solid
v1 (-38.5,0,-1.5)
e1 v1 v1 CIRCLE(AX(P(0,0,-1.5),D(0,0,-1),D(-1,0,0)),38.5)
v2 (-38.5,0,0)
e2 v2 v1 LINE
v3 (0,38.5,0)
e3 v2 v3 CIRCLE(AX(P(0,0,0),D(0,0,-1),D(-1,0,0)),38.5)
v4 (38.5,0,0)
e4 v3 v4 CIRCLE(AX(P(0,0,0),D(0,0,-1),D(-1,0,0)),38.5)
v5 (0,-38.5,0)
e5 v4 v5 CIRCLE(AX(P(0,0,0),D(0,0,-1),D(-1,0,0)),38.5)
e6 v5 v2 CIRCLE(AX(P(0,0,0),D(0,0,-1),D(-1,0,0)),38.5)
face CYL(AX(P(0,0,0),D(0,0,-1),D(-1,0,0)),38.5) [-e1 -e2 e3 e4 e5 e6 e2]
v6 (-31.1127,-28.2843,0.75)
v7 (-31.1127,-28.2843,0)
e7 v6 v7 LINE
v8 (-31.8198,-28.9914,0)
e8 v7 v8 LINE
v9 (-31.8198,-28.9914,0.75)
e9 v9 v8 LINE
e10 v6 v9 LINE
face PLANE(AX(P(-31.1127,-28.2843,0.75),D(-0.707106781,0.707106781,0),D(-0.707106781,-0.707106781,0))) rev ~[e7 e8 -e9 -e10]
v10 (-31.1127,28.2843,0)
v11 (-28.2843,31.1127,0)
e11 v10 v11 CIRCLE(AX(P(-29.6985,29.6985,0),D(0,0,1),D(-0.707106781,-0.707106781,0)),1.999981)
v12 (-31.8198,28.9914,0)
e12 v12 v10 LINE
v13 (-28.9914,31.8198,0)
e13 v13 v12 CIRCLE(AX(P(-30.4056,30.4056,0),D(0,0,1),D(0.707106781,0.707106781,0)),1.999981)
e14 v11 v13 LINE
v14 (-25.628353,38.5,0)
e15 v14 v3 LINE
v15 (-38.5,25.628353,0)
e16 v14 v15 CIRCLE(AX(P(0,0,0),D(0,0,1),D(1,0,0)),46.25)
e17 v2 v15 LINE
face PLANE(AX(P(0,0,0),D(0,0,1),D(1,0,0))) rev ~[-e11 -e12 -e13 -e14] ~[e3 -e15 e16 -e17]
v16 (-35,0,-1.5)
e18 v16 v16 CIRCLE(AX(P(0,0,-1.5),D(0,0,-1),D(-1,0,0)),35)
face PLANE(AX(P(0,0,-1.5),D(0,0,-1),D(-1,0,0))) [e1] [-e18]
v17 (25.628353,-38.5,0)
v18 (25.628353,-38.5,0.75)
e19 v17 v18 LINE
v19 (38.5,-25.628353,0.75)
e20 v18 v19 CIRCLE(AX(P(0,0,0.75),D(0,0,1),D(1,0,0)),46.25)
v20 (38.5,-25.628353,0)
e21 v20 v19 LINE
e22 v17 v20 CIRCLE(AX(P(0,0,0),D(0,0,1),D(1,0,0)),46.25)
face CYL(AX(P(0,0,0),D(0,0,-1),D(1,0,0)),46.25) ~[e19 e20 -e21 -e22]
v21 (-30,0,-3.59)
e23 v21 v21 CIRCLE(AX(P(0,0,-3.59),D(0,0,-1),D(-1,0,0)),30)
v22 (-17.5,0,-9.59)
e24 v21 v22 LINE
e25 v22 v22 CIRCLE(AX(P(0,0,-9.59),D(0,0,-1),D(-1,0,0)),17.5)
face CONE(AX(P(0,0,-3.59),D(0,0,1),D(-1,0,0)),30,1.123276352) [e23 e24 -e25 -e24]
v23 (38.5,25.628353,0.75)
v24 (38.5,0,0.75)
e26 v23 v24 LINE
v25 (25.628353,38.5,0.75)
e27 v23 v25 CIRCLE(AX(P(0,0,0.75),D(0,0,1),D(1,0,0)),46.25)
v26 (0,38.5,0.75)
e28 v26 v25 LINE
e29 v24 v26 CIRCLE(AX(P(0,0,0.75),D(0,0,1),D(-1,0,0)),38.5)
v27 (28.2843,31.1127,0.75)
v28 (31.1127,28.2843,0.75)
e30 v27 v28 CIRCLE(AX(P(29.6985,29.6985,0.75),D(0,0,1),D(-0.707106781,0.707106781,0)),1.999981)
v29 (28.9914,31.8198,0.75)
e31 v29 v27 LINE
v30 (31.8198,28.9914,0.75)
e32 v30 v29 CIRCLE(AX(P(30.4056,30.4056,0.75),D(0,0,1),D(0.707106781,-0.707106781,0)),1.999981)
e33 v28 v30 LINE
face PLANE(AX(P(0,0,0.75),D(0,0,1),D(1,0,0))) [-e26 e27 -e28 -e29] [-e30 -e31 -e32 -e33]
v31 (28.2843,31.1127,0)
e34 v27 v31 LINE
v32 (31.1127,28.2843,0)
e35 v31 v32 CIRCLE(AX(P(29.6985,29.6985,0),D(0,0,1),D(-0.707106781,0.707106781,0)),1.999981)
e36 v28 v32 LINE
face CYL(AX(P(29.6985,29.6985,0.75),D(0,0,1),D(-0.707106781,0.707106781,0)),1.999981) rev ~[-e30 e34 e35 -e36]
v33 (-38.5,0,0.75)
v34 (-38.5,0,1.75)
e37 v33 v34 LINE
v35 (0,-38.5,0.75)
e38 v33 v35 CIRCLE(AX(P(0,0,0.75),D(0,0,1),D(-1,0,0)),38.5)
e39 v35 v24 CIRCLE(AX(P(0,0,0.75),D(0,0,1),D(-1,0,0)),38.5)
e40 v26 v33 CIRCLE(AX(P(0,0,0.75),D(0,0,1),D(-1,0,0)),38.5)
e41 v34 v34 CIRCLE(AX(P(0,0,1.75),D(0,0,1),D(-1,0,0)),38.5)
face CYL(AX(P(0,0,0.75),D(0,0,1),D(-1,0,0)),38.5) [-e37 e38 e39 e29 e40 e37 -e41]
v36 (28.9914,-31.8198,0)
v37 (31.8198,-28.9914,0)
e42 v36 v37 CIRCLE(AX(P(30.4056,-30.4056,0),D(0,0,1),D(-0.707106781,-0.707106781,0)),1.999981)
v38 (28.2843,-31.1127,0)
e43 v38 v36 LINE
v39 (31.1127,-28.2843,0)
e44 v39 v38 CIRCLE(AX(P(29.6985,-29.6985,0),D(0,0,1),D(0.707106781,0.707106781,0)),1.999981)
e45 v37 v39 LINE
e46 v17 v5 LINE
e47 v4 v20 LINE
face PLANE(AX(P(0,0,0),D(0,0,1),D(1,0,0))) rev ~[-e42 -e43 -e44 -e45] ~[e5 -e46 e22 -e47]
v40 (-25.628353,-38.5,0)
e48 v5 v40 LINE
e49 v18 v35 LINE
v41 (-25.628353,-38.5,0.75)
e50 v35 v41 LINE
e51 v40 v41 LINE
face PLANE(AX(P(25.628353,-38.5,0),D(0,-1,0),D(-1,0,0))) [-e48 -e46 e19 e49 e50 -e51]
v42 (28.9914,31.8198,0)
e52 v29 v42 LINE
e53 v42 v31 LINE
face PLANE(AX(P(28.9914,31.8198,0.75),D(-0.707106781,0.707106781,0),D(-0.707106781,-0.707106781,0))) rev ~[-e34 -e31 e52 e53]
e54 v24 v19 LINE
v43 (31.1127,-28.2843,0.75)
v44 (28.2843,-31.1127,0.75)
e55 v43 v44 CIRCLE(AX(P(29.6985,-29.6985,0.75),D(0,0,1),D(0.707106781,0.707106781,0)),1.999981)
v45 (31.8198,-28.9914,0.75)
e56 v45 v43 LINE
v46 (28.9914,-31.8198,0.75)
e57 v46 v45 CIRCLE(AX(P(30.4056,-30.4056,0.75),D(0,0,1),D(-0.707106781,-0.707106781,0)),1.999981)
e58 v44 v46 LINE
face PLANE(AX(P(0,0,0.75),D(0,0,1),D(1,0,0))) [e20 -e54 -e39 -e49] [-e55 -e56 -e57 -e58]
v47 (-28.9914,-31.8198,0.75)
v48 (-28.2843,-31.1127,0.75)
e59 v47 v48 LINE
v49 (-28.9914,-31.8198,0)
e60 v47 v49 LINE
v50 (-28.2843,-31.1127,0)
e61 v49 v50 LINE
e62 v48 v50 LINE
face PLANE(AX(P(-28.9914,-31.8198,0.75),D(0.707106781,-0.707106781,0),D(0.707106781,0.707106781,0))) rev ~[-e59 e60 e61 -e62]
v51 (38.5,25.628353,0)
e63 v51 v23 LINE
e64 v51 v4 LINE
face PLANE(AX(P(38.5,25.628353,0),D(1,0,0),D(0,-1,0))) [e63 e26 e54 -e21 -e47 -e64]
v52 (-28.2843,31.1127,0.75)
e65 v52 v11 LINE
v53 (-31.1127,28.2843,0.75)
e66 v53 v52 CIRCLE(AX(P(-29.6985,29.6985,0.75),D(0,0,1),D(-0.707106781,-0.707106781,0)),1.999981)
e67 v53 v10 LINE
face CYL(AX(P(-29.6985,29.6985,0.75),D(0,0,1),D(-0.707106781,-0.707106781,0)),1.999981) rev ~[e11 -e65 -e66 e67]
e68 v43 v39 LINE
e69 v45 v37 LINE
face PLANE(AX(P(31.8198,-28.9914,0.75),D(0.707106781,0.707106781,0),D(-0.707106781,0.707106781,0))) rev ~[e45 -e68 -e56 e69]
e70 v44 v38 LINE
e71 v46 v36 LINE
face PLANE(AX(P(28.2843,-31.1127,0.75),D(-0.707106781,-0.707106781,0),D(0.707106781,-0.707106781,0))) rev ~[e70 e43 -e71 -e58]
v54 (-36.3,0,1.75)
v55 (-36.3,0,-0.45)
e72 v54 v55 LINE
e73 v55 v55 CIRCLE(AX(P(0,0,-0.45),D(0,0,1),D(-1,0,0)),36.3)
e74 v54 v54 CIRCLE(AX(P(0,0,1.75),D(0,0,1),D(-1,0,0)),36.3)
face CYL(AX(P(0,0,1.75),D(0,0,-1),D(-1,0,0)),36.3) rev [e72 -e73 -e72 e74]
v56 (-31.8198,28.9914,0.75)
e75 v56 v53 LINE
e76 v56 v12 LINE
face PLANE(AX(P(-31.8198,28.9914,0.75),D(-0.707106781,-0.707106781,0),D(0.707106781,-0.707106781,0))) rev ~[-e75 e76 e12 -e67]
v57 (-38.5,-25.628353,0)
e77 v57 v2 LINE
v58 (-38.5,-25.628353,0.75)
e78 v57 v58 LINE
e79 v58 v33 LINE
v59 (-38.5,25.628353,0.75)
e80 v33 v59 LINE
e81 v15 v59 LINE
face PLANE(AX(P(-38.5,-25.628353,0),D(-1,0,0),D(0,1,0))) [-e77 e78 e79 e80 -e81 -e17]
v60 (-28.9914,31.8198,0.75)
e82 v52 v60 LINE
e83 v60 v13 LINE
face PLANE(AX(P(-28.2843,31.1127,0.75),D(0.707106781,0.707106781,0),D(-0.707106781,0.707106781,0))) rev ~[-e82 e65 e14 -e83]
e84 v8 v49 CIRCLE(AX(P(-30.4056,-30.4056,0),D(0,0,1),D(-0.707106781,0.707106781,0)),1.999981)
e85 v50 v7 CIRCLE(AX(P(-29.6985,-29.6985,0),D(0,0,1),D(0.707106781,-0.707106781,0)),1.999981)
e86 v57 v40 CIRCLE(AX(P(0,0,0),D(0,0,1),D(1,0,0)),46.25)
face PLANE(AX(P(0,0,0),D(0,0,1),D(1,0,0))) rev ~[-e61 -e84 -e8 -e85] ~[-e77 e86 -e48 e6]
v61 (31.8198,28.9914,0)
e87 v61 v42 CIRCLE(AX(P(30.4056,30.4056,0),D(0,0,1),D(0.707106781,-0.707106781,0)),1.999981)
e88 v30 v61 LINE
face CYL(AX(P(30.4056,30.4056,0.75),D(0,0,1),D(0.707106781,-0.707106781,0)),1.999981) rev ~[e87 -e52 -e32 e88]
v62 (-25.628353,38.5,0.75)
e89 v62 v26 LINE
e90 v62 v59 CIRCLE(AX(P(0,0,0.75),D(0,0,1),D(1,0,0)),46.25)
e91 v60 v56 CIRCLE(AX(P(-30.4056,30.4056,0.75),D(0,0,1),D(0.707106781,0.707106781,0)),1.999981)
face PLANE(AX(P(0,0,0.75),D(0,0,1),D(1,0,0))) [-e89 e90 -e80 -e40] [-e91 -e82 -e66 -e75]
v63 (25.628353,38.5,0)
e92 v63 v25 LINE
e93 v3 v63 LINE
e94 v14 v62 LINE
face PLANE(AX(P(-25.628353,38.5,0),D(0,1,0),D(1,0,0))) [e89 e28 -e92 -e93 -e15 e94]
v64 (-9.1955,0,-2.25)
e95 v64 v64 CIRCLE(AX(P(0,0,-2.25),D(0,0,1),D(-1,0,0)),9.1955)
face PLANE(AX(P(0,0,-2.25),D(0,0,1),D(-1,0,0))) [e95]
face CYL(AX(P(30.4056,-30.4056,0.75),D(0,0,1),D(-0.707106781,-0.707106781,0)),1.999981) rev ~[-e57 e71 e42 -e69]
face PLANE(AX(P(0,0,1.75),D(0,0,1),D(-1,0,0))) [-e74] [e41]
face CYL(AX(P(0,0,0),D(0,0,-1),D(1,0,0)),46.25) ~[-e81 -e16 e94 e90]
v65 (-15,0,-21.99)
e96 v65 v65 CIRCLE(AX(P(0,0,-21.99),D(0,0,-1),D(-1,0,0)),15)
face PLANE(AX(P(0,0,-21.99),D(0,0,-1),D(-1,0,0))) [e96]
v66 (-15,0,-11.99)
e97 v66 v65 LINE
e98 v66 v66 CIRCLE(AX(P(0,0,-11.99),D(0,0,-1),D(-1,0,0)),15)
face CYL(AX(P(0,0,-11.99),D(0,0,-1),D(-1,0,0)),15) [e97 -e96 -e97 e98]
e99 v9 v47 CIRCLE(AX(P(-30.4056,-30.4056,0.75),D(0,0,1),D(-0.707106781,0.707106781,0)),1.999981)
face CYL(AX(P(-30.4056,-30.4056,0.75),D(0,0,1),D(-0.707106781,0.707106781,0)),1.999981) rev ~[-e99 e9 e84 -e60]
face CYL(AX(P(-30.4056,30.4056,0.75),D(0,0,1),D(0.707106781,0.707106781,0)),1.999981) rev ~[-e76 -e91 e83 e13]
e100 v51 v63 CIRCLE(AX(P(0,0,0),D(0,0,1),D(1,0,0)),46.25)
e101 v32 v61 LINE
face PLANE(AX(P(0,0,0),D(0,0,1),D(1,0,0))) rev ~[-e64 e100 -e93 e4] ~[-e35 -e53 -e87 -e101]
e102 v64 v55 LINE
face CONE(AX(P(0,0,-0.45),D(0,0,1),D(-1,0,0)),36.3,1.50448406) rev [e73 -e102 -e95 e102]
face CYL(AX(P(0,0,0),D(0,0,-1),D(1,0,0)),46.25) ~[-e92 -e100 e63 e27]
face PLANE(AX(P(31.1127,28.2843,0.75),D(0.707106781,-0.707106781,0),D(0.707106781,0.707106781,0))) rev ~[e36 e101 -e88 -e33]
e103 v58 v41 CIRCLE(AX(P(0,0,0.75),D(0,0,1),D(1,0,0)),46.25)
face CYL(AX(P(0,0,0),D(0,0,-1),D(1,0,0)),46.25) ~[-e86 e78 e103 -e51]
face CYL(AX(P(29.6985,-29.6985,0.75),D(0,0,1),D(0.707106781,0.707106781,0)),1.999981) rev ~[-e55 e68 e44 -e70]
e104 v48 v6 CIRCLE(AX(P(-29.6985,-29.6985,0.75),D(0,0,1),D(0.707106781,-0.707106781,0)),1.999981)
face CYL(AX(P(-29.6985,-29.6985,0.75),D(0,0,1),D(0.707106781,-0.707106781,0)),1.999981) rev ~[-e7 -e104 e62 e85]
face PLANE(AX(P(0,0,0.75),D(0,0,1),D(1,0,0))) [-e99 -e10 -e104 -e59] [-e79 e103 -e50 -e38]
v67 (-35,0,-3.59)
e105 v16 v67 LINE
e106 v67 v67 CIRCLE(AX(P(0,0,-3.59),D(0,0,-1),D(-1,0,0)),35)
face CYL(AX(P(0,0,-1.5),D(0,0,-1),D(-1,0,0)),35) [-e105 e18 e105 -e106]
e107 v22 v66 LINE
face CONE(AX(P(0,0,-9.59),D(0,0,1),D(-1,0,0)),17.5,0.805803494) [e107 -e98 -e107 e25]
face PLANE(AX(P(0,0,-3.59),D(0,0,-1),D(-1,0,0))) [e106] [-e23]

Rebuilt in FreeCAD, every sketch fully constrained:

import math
import FreeCAD as App
import Part
import Sketcher

V = App.Vector
Q = App.Units.Quantity


def add_polygon(sketch, points):
    """Adds a closed chain of lines whose ends are joined by coincident constraints."""
    first, n = sketch.GeometryCount, len(points)
    for a, b in zip(points, points[1:] + points[:1]):
        sketch.addGeometry(Part.LineSegment(App.Vector(*a, 0), App.Vector(*b, 0)), False)
    for i in range(n):
        sketch.addConstraint(Sketcher.Constraint("Coincident", first + i, 2, first + (i + 1) % n, 1))

doc = App.newDocument("Part")
body = doc.addObject("PartDesign::Body", "Body")

sketch1 = body.newObject("Sketcher::SketchObject", "Sketch")
sketch1.AttachmentSupport = (doc.getObject("XY_Plane"), [""])
sketch1.MapMode = "FlatFace"
sketch1.addGeometry([
    Part.LineSegment(V(38.5, -25.628353, 0), V(38.5, 25.628353, 0)),
    Part.ArcOfCircle(Part.Circle(V(0, 0, 0), V(0, 0, 1), 46.25), math.radians(33.650576), math.radians(56.349424)),
    Part.LineSegment(V(25.628353, 38.5, 0), V(-25.628353, 38.5, 0)),
    Part.ArcOfCircle(Part.Circle(V(0, 0, 0), V(0, 0, 1), 46.25), math.radians(123.650576), math.radians(146.349424)),
    Part.LineSegment(V(-38.5, 25.628353, 0), V(-38.5, -25.628353, 0)),
    Part.ArcOfCircle(Part.Circle(V(0, 0, 0), V(0, 0, 1), 46.25), math.radians(-146.349424), math.radians(-123.650576)),
    Part.LineSegment(V(-25.628353, -38.5, 0), V(25.628353, -38.5, 0)),
    Part.ArcOfCircle(Part.Circle(V(0, 0, 0), V(0, 0, 1), 46.25), math.radians(-56.349424), math.radians(-33.650576)),
], False)
sketch1.addConstraint([
    Sketcher.Constraint("Coincident", 0, 2, 1, 1),
    Sketcher.Constraint("Coincident", 1, 2, 2, 1),
    Sketcher.Constraint("Coincident", 2, 2, 3, 1),
    Sketcher.Constraint("Coincident", 3, 2, 4, 1),
    Sketcher.Constraint("Coincident", 4, 2, 5, 1),
    Sketcher.Constraint("Coincident", 5, 2, 6, 1),
    Sketcher.Constraint("Coincident", 6, 2, 7, 1),
    Sketcher.Constraint("Coincident", 7, 2, 0, 1),
    Sketcher.Constraint("Vertical", 0),
    Sketcher.Constraint("Horizontal", 2),
    Sketcher.Constraint("Vertical", 4),
    Sketcher.Constraint("Horizontal", 6),
    Sketcher.Constraint("Coincident", 1, 3, -1, 1),
    Sketcher.Constraint("Coincident", 3, 3, -1, 1),
    Sketcher.Constraint("Coincident", 5, 3, -1, 1),
    Sketcher.Constraint("Coincident", 7, 3, -1, 1),
    Sketcher.Constraint("Equal", 1, 3),
    Sketcher.Constraint("Equal", 3, 5),
    Sketcher.Constraint("Equal", 5, 7),
    Sketcher.Constraint("Horizontal", 0, 2, 3, 2),
    Sketcher.Constraint("Vertical", 2, 2, 5, 2),
    Sketcher.Constraint("Equal", 6, 0),
    Sketcher.Constraint("Radius", 1, Q("46.25 mm")),
    Sketcher.Constraint("DistanceX", -1, 1, 0, 2, Q("38.5 mm")),
])
pad1 = body.newObject("PartDesign::Pad", "Pad")
pad1.Profile = sketch1
pad1.Length = 0.75

sketch2 = body.newObject("Sketcher::SketchObject", "Sketch001")
sketch2.AttachmentSupport = (doc.getObject("XZ_Plane"), [""])
sketch2.MapMode = "FlatFace"
add_polygon(sketch2, [(-17.5, -9.59), (-30, -3.59), (-35, -3.59), (-35, -1.5), (-38.5, -1.5), (-38.5, 0), (0, 0), (0, -21.99), (-15, -21.99), (-15, -11.99)])
sketch2.addConstraint([
    Sketcher.Constraint("Horizontal", 1),
    Sketcher.Constraint("Vertical", 2),
    Sketcher.Constraint("Horizontal", 3),
    Sketcher.Constraint("Vertical", 4),
    Sketcher.Constraint("Horizontal", 5),
    Sketcher.Constraint("Vertical", 6),
    Sketcher.Constraint("Horizontal", 7),
    Sketcher.Constraint("Vertical", 8),
    Sketcher.Constraint("Coincident", 5, 2, -1, 1),
    Sketcher.Constraint("DistanceY", 8, 1, 8, 2, Q("10 mm")),
    Sketcher.Constraint("DistanceY", 4, 1, 4, 2, Q("1.5 mm")),
    Sketcher.Constraint("DistanceX", 0, 2, -1, 1, Q("30 mm")),
    Sketcher.Constraint("DistanceX", 1, 2, -1, 1, Q("35 mm")),
    Sketcher.Constraint("DistanceY", 9, 2, 0, 2, Q("6 mm")),
    Sketcher.Constraint("DistanceY", 2, 1, 2, 2, Q("2.09 mm")),
    Sketcher.Constraint("DistanceY", 8, 2, 9, 2, Q("2.4 mm")),
    Sketcher.Constraint("DistanceX", 7, 2, 7, 1, Q("15 mm")),
    Sketcher.Constraint("DistanceX", 3, 2, 3, 1, Q("3.5 mm")),
    Sketcher.Constraint("DistanceX", 9, 2, -1, 1, Q("17.5 mm")),
])
revolution = body.newObject("PartDesign::Revolution", "Revolution")
revolution.Profile = sketch2
revolution.ReferenceAxis = (sketch2, ["V_Axis"])
revolution.Angle = 360

sketch3 = body.newObject("Sketcher::SketchObject", "Sketch002")
sketch3.AttachmentSupport = (doc.getObject("XZ_Plane"), [""])
sketch3.MapMode = "FlatFace"
add_polygon(sketch3, [(-36.3, 0.75), (-38.5, 0.75), (-38.5, 1.75), (-36.3, 1.75)])
sketch3.addConstraint([
    Sketcher.Constraint("Horizontal", 0),
    Sketcher.Constraint("Vertical", 1),
    Sketcher.Constraint("Horizontal", 2),
    Sketcher.Constraint("Vertical", 3),
    Sketcher.Constraint("DistanceY", 1, 1, 1, 2, Q("1 mm")),
    Sketcher.Constraint("DistanceX", 0, 2, 0, 1, Q("2.2 mm")),
    Sketcher.Constraint("DistanceX", 0, 2, -1, 1, Q("38.5 mm")),
    Sketcher.Constraint("DistanceY", -1, 1, 0, 2, Q("0.75 mm")),
])
revolution2 = body.newObject("PartDesign::Revolution", "Revolution001")
revolution2.Profile = sketch3
revolution2.ReferenceAxis = (sketch3, ["V_Axis"])
revolution2.Angle = 360

sketch4 = body.newObject("Sketcher::SketchObject", "Sketch003")
sketch4.AttachmentSupport = (doc.getObject("XZ_Plane"), [""])
sketch4.MapMode = "FlatFace"
add_polygon(sketch4, [(-36.3, -0.45), (-36.3, 0.75), (0, 0.75), (0, -2.25), (-9.1955, -2.25)])
sketch4.addConstraint([
    Sketcher.Constraint("Vertical", 0),
    Sketcher.Constraint("Horizontal", 1),
    Sketcher.Constraint("Vertical", 2),
    Sketcher.Constraint("Horizontal", 3),
    Sketcher.Constraint("PointOnObject", 1, 2, -2),
    Sketcher.Constraint("DistanceY", 2, 2, 2, 1, Q("3 mm")),
    Sketcher.Constraint("DistanceY", 0, 1, 0, 2, Q("1.2 mm")),
    Sketcher.Constraint("DistanceX", 1, 1, 1, 2, Q("36.3 mm")),
    Sketcher.Constraint("Angle", 4, Q("176.2006 deg")),
    Sketcher.Constraint("DistanceY", -1, 1, 0, 2, Q("0.75 mm")),
])
groove = body.newObject("PartDesign::Groove", "Groove")
groove.Profile = sketch4
groove.ReferenceAxis = (sketch4, ["V_Axis"])
groove.Angle = 360

sketch5 = body.newObject("Sketcher::SketchObject", "Sketch004")
sketch5.AttachmentSupport = (doc.getObject("XY_Plane"), [""])
sketch5.MapMode = "FlatFace"
sketch5.AttachmentOffset = App.Placement(V(0, 0, 0.75), App.Rotation())
sketch5.addGeometry([
    Part.ArcOfCircle(Part.Circle(V(-29.6985, 29.6985, 0), V(0, 0, 1), 1.999981), math.radians(-135), math.radians(45)),
    Part.LineSegment(V(-28.2843, 31.1127, 0), V(-28.9914, 31.8198, 0)),
    Part.ArcOfCircle(Part.Circle(V(-30.4056, 30.4056, 0), V(0, 0, 1), 1.999981), math.radians(45), math.radians(225)),
    Part.LineSegment(V(-31.8198, 28.9914, 0), V(-31.1127, 28.2843, 0)),
], False)
sketch5.addConstraint([
    Sketcher.Constraint("Tangent", 0, 2, 1, 1),
    Sketcher.Constraint("Tangent", 1, 2, 2, 1),
    Sketcher.Constraint("Tangent", 2, 2, 3, 1),
    Sketcher.Constraint("Tangent", 3, 2, 0, 1),
    Sketcher.Constraint("Equal", 0, 2),
    Sketcher.Constraint("Radius", 0, Q("2 mm")),
    Sketcher.Constraint("Angle", 3, Q("-45 deg")),
    Sketcher.Constraint("Distance", 1, Q("1 mm")),
    Sketcher.Constraint("DistanceX", 0, 3, -1, 1, Q("29.6985 mm")),
    Sketcher.Constraint("DistanceY", -1, 1, 0, 3, Q("29.6985 mm")),
])
pocket1 = body.newObject("PartDesign::Pocket", "Pocket")
pocket1.Profile = sketch5
pocket1.Length = 0.75
doc.recompute()

polarpattern = body.newObject("PartDesign::PolarPattern", "PolarPattern")
polarpattern.Originals = [pocket1]
polarpattern.Axis = (doc.getObject("Z_Axis"), [""])
polarpattern.Angle = 360
polarpattern.Occurrences = 4
body.Tip = polarpattern

doc.recompute()
